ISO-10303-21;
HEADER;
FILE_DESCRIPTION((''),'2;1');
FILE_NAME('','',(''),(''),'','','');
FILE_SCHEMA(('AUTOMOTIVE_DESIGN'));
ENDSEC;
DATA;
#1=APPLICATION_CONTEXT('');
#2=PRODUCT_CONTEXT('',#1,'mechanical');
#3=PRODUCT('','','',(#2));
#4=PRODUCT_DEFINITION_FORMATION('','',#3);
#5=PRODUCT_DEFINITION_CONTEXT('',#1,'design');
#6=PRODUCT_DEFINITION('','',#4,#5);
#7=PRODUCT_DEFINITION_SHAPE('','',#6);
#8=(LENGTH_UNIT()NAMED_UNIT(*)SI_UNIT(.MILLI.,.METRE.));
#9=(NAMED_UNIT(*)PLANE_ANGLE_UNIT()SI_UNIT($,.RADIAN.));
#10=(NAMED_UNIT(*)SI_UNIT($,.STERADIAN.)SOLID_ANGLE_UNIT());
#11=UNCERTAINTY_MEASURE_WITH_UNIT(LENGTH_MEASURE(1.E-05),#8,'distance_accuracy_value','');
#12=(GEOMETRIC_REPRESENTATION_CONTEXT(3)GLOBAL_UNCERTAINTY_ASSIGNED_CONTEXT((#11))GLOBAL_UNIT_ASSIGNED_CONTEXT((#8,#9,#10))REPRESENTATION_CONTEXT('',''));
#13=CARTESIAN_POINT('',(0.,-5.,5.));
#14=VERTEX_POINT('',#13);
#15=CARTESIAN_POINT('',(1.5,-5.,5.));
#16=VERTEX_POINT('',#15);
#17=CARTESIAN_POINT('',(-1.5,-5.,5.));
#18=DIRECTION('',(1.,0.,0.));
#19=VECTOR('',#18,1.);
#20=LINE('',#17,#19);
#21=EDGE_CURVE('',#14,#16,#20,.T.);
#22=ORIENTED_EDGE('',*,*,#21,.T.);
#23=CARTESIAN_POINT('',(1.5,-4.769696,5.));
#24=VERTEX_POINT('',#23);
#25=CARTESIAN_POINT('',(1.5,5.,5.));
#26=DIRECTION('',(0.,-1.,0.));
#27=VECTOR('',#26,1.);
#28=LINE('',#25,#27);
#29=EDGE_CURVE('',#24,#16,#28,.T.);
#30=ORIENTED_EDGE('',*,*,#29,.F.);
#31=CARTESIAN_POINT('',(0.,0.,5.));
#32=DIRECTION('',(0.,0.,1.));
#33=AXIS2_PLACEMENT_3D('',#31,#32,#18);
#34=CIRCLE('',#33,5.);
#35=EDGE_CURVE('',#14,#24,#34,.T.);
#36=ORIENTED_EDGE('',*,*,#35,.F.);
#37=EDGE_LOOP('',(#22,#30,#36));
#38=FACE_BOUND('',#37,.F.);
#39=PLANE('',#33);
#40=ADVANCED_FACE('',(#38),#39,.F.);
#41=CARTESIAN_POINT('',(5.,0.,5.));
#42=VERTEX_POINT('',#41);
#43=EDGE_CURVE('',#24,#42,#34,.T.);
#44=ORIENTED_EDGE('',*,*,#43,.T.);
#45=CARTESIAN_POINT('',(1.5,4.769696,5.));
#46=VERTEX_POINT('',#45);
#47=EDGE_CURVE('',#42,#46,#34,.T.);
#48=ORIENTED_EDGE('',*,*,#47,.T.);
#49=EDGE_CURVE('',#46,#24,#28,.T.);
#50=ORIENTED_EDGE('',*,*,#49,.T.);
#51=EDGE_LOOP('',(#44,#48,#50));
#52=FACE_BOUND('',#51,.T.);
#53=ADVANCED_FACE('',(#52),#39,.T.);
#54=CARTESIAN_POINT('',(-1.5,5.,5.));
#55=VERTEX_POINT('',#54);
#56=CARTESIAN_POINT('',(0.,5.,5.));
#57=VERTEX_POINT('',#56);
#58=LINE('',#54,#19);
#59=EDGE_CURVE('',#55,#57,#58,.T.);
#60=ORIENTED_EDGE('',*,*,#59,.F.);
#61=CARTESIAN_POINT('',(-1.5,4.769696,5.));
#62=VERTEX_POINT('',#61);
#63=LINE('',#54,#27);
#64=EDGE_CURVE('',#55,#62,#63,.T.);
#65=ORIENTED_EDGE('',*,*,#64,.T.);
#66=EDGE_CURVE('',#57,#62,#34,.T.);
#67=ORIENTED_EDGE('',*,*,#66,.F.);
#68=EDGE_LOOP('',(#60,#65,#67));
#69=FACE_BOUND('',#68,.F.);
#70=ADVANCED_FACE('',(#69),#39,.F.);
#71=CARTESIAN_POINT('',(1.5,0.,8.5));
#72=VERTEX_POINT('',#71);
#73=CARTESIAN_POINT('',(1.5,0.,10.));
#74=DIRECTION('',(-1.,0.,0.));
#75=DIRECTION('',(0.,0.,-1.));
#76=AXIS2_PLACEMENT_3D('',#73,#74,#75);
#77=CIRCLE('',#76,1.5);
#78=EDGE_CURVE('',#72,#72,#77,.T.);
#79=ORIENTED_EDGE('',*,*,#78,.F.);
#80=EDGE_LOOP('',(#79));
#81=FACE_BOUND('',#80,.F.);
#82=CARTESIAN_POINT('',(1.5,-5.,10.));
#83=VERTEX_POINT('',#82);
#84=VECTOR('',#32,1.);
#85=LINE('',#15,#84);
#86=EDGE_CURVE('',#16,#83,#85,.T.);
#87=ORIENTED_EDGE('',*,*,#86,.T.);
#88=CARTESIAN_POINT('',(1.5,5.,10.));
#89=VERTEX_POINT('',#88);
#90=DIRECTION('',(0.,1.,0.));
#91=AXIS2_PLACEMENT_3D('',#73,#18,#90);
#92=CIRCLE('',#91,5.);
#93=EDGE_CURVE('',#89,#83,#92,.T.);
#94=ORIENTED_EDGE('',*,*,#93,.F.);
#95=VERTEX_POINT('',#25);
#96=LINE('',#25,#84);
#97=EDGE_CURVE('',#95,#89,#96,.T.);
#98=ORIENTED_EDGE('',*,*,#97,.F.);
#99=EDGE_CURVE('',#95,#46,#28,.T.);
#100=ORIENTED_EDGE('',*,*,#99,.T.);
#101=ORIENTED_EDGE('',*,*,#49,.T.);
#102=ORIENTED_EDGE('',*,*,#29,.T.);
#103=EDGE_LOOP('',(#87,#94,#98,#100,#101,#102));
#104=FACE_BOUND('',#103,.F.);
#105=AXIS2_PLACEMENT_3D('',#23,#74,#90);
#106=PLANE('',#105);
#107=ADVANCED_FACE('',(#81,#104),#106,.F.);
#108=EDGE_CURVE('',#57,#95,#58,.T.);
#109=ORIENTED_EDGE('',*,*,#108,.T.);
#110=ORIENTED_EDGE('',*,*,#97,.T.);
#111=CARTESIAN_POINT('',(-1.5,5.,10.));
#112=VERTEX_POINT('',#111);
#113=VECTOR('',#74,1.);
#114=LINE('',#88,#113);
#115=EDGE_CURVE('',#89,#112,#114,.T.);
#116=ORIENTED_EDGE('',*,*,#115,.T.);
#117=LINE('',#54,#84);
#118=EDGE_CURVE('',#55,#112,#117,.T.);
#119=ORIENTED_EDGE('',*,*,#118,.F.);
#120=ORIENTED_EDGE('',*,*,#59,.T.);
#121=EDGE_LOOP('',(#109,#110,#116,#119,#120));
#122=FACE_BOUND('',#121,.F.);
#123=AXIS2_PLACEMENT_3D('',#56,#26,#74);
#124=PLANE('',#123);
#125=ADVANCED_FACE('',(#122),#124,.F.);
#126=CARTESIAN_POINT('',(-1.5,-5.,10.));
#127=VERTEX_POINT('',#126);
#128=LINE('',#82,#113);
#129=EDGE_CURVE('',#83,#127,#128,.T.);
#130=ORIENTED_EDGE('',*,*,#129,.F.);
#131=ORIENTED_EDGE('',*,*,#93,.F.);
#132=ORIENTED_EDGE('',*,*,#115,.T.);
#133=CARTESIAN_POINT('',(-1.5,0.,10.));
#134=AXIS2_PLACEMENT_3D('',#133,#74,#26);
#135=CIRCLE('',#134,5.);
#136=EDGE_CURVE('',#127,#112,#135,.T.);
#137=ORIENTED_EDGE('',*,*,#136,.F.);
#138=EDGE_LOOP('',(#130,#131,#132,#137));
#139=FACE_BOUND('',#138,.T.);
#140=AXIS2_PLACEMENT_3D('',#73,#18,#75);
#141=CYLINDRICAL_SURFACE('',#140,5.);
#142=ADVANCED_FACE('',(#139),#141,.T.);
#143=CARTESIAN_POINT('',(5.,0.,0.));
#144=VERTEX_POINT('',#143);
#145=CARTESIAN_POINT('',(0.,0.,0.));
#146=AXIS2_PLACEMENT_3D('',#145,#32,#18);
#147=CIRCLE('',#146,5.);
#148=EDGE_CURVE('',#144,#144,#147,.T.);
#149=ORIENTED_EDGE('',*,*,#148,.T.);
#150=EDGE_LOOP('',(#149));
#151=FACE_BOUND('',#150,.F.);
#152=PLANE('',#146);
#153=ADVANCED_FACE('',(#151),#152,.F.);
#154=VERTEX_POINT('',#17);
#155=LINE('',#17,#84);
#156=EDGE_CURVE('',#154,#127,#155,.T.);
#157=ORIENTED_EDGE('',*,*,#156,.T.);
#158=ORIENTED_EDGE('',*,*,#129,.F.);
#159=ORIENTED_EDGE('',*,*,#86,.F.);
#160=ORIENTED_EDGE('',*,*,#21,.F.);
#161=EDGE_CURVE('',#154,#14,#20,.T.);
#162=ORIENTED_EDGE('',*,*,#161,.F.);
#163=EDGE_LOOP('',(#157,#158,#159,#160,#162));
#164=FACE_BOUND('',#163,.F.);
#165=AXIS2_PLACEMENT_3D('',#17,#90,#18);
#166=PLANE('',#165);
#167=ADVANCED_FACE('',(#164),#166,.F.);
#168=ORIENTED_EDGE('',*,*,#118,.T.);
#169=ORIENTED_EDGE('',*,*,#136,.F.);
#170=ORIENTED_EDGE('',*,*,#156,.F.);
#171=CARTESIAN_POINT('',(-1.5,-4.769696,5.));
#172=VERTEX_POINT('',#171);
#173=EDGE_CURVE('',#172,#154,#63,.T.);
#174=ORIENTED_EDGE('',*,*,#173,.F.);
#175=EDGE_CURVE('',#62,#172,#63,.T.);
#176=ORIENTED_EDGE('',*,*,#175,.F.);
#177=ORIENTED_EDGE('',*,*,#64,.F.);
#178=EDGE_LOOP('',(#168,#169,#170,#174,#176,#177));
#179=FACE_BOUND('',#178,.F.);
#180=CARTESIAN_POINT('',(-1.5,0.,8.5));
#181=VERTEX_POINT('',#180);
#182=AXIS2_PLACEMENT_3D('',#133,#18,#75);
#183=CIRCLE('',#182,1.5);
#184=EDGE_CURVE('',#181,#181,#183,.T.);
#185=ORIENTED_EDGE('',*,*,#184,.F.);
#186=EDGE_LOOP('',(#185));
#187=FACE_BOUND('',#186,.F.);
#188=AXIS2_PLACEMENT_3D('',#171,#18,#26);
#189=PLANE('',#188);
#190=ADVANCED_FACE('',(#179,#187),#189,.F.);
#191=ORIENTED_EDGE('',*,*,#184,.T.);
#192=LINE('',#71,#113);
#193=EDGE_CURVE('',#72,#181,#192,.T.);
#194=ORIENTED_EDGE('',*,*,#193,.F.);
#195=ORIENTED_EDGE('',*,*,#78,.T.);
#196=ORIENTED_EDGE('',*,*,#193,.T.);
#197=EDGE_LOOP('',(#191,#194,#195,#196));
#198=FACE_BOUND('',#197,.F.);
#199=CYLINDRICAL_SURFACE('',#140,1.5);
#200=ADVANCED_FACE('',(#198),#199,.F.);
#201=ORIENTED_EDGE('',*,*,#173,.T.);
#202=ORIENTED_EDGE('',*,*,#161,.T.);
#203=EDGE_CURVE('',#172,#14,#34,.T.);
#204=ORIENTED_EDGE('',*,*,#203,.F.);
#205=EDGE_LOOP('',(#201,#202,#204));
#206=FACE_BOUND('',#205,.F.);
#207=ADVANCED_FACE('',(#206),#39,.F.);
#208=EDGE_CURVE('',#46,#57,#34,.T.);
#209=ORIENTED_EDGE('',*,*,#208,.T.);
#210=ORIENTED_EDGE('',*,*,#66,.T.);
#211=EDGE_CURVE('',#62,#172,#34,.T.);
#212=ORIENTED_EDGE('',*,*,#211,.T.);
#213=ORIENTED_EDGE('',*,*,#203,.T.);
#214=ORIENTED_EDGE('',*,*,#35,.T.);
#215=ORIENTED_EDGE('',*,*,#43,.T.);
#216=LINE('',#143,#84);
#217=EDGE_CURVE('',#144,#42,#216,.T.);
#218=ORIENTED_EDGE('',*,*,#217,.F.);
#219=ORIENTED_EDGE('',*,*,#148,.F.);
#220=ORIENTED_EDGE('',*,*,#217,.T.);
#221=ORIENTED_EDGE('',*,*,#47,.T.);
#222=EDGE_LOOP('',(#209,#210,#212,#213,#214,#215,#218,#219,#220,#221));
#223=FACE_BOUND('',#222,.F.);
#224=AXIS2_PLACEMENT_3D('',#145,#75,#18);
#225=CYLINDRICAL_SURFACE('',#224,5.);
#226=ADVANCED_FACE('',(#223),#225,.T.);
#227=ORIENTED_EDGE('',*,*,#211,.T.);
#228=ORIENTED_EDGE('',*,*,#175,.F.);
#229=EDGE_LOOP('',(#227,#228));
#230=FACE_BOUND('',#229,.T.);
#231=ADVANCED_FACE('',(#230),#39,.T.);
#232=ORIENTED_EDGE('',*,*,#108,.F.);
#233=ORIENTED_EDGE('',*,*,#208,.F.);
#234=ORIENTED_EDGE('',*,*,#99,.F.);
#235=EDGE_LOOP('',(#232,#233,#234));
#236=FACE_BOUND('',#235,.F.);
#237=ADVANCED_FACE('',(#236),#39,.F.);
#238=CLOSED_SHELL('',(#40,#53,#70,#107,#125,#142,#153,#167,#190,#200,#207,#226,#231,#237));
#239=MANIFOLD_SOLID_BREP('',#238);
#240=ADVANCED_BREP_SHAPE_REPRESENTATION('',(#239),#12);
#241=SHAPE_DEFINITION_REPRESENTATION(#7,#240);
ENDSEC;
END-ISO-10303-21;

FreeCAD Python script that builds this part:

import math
import FreeCAD as App
import Part
import Sketcher
from FreeCAD import Vector


def add_polygon(sketch, points):
    """Adds a closed chain of lines whose ends are joined by coincident constraints."""
    first, n = sketch.GeometryCount, len(points)
    for a, b in zip(points, points[1:] + points[:1]):
        sketch.addGeometry(Part.LineSegment(App.Vector(*a, 0), App.Vector(*b, 0)), False)
    for i in range(n):
        sketch.addConstraint(Sketcher.Constraint("Coincident", first + i, 2, first + (i + 1) % n, 1))

doc = App.newDocument("Part")
body = doc.addObject("PartDesign::Body", "Body")

# Sketch on XY plane
sketch1 = doc.addObject("Sketcher::SketchObject", "Sketch")
body.addObject(sketch1)
sketch1.AttachmentSupport = (doc.XY_Plane, [""])
sketch1.MapMode = "FlatFace"
sketch1.addGeometry(Part.Circle(Vector(0, 0, 0), Vector(0, 0, 1), 5), False)
sketch1.addConstraint(Sketcher.Constraint("Coincident", 0, 3, -1, 1))
sketch1.addConstraint(Sketcher.Constraint("Diameter", 0, 10.0))
pad1 = doc.addObject("PartDesign::Pad", "Pad")
body.addObject(pad1)
pad1.Profile = sketch1
pad1.Length = 5

# Sketch on XY plane
sketch2 = doc.addObject("Sketcher::SketchObject", "Sketch001")
body.addObject(sketch2)
sketch2.AttachmentSupport = (doc.XY_Plane, [""])
sketch2.MapMode = "FlatFace"
sketch2.AttachmentOffset = App.Placement(Vector(0, 0, 5), App.Rotation())
add_polygon(sketch2, [(-1.5, -5), (1.5, -5), (1.5, 5), (-1.5, 5)])  # lines 0-3
sketch2.addConstraint(Sketcher.Constraint("Horizontal", 0))
sketch2.addConstraint(Sketcher.Constraint("Vertical", 1))
sketch2.addConstraint(Sketcher.Constraint("Horizontal", 2))
sketch2.addConstraint(Sketcher.Constraint("Vertical", 3))
sketch2.addConstraint(Sketcher.Constraint("Symmetric", 0, 2, 2, 2, -1, 1))
sketch2.addConstraint(Sketcher.Constraint("DistanceX", 0, 1, 0, 2, 3.0))
sketch2.addConstraint(Sketcher.Constraint("DistanceY", 1, 1, 1, 2, 10.0))
pad2 = doc.addObject("PartDesign::Pad", "Pad001")
body.addObject(pad2)
pad2.Profile = sketch2
pad2.Length = 10

# Sketch on YZ plane
sketch3 = doc.addObject("Sketcher::SketchObject", "Sketch002")
body.addObject(sketch3)
sketch3.AttachmentSupport = (doc.YZ_Plane, [""])
sketch3.MapMode = "FlatFace"
sketch3.AttachmentOffset = App.Placement(Vector(0, 0, 1.5), App.Rotation())
sketch3.addGeometry(Part.Circle(Vector(0, 10, 0), Vector(0, 0, 1), 1.5), False)
sketch3.addConstraint(Sketcher.Constraint("PointOnObject", 0, 3, -2))
sketch3.addConstraint(Sketcher.Constraint("Diameter", 0, 3.0))
sketch3.addConstraint(Sketcher.Constraint("DistanceY", -1, 1, 0, 3, 10.0))
pocket1 = doc.addObject("PartDesign::Pocket", "Pocket")
body.addObject(pocket1)
pocket1.Profile = sketch3
pocket1.Type = "ThroughAll"

# Sketch on YZ plane
sketch4 = doc.addObject("Sketcher::SketchObject", "Sketch003")
body.addObject(sketch4)
sketch4.AttachmentSupport = (doc.YZ_Plane, [""])
sketch4.MapMode = "FlatFace"
sketch4.AttachmentOffset = App.Placement(Vector(0, 0, 1.5), App.Rotation())
sketch4.addGeometry(Part.ArcOfCircle(Part.Circle(Vector(0, 10, 0), Vector(0, 0, 1), 5), math.radians(0), math.radians(90)), False)
sketch4.addGeometry(Part.LineSegment(Vector(5, 10, 0), Vector(5, 15, 0)), False)
sketch4.addGeometry(Part.LineSegment(Vector(5, 15, 0), Vector(0, 15, 0)), False)
sketch4.addGeometry(Part.LineSegment(Vector(-5, 15, 0), Vector(-5, 10, 0)), False)
sketch4.addGeometry(Part.ArcOfCircle(Part.Circle(Vector(0, 10, 0), Vector(0, 0, 1), 5), math.radians(90), math.radians(180)), False)
sketch4.addGeometry(Part.LineSegment(Vector(0, 15, 0), Vector(-5, 15, 0)), False)
sketch4.addConstraint(Sketcher.Constraint("Tangent", 0, 1, 1, 1))
sketch4.addConstraint(Sketcher.Constraint("Coincident", 1, 2, 2, 1))
sketch4.addConstraint(Sketcher.Constraint("Tangent", 2, 2, 0, 2))
sketch4.addConstraint(Sketcher.Constraint("Tangent", 3, 2, 4, 2))
sketch4.addConstraint(Sketcher.Constraint("Tangent", 4, 1, 5, 1))
sketch4.addConstraint(Sketcher.Constraint("Coincident", 5, 2, 3, 1))
sketch4.addConstraint(Sketcher.Constraint("Vertical", 1))
sketch4.addConstraint(Sketcher.Constraint("Horizontal", 2))
sketch4.addConstraint(Sketcher.Constraint("Vertical", 3))
sketch4.addConstraint(Sketcher.Constraint("Horizontal", 5))
sketch4.addConstraint(Sketcher.Constraint("Coincident", 4, 3, 0, 3))
sketch4.addConstraint(Sketcher.Constraint("Equal", 0, 4))
sketch4.addConstraint(Sketcher.Constraint("PointOnObject", 0, 3, -2))
sketch4.addConstraint(Sketcher.Constraint("Radius", 0, 5.0))
sketch4.addConstraint(Sketcher.Constraint("DistanceY", -1, 1, 0, 3, 10.0))
pocket2 = doc.addObject("PartDesign::Pocket", "Pocket001")
body.addObject(pocket2)
pocket2.Profile = sketch4
pocket2.Type = "ThroughAll"

doc.recompute()
